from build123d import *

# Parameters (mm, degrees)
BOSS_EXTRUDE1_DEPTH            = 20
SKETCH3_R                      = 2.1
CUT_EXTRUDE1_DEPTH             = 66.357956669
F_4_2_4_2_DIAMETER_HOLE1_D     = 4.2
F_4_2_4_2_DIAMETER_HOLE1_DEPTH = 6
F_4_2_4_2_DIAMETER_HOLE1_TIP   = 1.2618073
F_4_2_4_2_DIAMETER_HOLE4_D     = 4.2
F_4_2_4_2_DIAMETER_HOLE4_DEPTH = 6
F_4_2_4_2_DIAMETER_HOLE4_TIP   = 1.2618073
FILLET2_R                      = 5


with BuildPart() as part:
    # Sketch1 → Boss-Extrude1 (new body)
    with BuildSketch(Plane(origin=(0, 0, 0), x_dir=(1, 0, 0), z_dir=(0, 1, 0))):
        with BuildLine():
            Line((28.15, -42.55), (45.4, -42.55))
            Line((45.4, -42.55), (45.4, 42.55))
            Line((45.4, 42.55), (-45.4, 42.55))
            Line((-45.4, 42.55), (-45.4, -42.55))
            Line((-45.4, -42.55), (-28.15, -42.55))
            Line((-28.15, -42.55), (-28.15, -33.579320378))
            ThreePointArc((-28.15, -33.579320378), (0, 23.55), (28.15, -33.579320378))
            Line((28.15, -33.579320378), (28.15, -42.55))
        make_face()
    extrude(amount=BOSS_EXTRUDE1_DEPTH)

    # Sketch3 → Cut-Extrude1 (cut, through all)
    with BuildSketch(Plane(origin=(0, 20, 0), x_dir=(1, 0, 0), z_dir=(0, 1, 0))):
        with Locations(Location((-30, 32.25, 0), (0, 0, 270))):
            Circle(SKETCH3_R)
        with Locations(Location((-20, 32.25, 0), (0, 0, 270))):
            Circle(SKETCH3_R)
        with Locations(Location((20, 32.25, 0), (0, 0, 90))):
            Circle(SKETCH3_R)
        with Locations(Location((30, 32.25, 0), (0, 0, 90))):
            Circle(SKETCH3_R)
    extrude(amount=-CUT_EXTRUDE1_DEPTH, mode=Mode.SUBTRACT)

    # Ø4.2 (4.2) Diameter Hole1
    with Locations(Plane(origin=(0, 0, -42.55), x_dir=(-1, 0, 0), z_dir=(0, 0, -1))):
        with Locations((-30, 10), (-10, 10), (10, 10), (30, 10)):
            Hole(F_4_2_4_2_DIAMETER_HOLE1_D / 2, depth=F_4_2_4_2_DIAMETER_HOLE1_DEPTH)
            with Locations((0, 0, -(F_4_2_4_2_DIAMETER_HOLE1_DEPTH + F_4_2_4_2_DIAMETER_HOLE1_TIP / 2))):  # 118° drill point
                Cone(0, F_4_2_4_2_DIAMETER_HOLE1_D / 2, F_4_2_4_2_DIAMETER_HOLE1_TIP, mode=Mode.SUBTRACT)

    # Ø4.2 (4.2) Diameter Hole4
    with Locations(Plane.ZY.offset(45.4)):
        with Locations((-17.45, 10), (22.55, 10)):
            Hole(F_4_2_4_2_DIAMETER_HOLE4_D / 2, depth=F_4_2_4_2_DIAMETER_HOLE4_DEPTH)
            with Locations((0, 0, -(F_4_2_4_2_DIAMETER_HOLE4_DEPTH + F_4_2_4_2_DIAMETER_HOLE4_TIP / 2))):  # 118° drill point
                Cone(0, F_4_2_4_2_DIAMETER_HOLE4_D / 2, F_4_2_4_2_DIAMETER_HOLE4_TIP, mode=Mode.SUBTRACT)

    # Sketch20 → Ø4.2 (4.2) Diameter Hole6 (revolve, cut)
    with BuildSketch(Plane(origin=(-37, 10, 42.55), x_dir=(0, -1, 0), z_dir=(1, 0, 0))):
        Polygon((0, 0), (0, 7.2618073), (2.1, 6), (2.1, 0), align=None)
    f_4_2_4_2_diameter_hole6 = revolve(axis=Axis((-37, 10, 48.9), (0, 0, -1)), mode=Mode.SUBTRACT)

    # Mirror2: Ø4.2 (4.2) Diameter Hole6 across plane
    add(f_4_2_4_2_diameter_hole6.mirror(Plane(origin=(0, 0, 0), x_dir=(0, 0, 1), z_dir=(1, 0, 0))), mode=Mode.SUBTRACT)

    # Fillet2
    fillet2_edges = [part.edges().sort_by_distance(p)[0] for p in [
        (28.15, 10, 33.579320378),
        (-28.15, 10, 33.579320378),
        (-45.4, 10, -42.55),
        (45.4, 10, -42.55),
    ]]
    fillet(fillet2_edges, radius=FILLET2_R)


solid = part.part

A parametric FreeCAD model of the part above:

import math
import FreeCAD as App
import Part
import Sketcher
Q = App.Units.Quantity


def edges_at(feature, points):
    """Names of the edges that pass closest to the given points."""
    edges = feature.Shape.Edges
    near = lambda p: min(range(len(edges)), key=lambda i: edges[i].distToShape(Part.Vertex(*p))[0])
    return sorted({f"Edge{near(p) + 1}" for p in points})

doc = App.newDocument("Part")
body = doc.addObject("PartDesign::Body", "Body")

# Sketch on XZ plane
sketch1 = body.newObject("Sketcher::SketchObject", "Sketch")
sketch1.AttachmentSupport = (doc.getObject("XZ_Plane"), [""])
sketch1.MapMode = "FlatFace"
sketch1.addGeometry(Part.LineSegment(App.Vector(28, 43, 0), App.Vector(45, 43, 0)), False)
sketch1.addGeometry(Part.LineSegment(App.Vector(45, 43, 0), App.Vector(45, -43, 0)), False)
sketch1.addGeometry(Part.LineSegment(App.Vector(45, -43, 0), App.Vector(-45, -43, 0)), False)
sketch1.addGeometry(Part.LineSegment(App.Vector(-45, -43, 0), App.Vector(-45, 43, 0)), False)
sketch1.addGeometry(Part.LineSegment(App.Vector(-45, 43, 0), App.Vector(-28, 43, 0)), False)
sketch1.addGeometry(Part.LineSegment(App.Vector(-28, 43, 0), App.Vector(-28, 34, 0)), False)
sketch1.addGeometry(Part.ArcOfCircle(Part.Circle(App.Vector(0, 12, 0), App.Vector(0, 0, 1), 36), math.radians(142), math.radians(398)), False)
sketch1.addGeometry(Part.LineSegment(App.Vector(28, 34, 0), App.Vector(28, 43, 0)), False)
sketch1.addConstraint(Sketcher.Constraint("Coincident", 0, 2, 1, 1))
sketch1.addConstraint(Sketcher.Constraint("Coincident", 1, 2, 2, 1))
sketch1.addConstraint(Sketcher.Constraint("Coincident", 2, 2, 3, 1))
sketch1.addConstraint(Sketcher.Constraint("Coincident", 3, 2, 4, 1))
sketch1.addConstraint(Sketcher.Constraint("Coincident", 4, 2, 5, 1))
sketch1.addConstraint(Sketcher.Constraint("Coincident", 5, 2, 6, 1))
sketch1.addConstraint(Sketcher.Constraint("Coincident", 6, 2, 7, 1))
sketch1.addConstraint(Sketcher.Constraint("Coincident", 7, 2, 0, 1))
sketch1.addConstraint(Sketcher.Constraint("Horizontal", 0))
sketch1.addConstraint(Sketcher.Constraint("Vertical", 1))
sketch1.addConstraint(Sketcher.Constraint("Horizontal", 2))
sketch1.addConstraint(Sketcher.Constraint("Vertical", 3))
sketch1.addConstraint(Sketcher.Constraint("Horizontal", 4))
sketch1.addConstraint(Sketcher.Constraint("Vertical", 5))
sketch1.addConstraint(Sketcher.Constraint("Vertical", 7))
sketch1.addConstraint(Sketcher.Constraint("Symmetric", 0, 2, 2, 2, -1, 1))
sketch1.addConstraint(Sketcher.Constraint("Symmetric", 5, 2, 6, 2, -2))
sketch1.addConstraint(Sketcher.Constraint("Horizontal", 0, 2, 3, 2))
sketch1.addConstraint(Sketcher.Constraint("Radius", 6, Q("35.5 mm")))
sketch1.addConstraint(Sketcher.Constraint("DistanceX", 2, 2, 2, 1, Q("90.8 mm")))
sketch1.addConstraint(Sketcher.Constraint("DistanceY", 1, 2, 1, 1, Q("85.1 mm")))
sketch1.addConstraint(Sketcher.Constraint("DistanceX", 0, 1, 0, 2, Q("17.25 mm")))
sketch1.addConstraint(Sketcher.Constraint("DistanceY", 6, 3, 0, 2, Q("30.6 mm")))
pad1 = body.newObject("PartDesign::Pad", "Pad")
pad1.Profile = sketch1
pad1.Length = 20
pad1.Reversed = True

# Sketch on XZ plane
sketch2 = body.newObject("Sketcher::SketchObject", "Sketch001")
sketch2.AttachmentSupport = (doc.getObject("XZ_Plane"), [""])
sketch2.MapMode = "FlatFace"
sketch2.AttachmentOffset = App.Placement(App.Vector(0, 0, -20), App.Rotation())
sketch2.addGeometry(Part.Circle(App.Vector(-30, -32.2, 0), App.Vector(0, 0, 1), 2.1), False)
sketch2.addGeometry(Part.Circle(App.Vector(-20, -32.2, 0), App.Vector(0, 0, 1), 2.1), False)
sketch2.addGeometry(Part.Circle(App.Vector(20, -32.2, 0), App.Vector(0, 0, 1), 2.1), False)
sketch2.addGeometry(Part.Circle(App.Vector(30, -32.2, 0), App.Vector(0, 0, 1), 2.1), False)
sketch2.addConstraint(Sketcher.Constraint("Equal", 0, 1))
sketch2.addConstraint(Sketcher.Constraint("Equal", 1, 2))
sketch2.addConstraint(Sketcher.Constraint("Equal", 2, 3))
sketch2.addConstraint(Sketcher.Constraint("Symmetric", 1, 3, 2, 3, -2))
sketch2.addConstraint(Sketcher.Constraint("Symmetric", 0, 3, 3, 3, -2))
sketch2.addConstraint(Sketcher.Constraint("Horizontal", 0, 3, 1, 3))
sketch2.addConstraint(Sketcher.Constraint("Diameter", 0, Q("4.2 mm")))
sketch2.addConstraint(Sketcher.Constraint("DistanceX", 0, 3, -1, 1, Q("30 mm")))
sketch2.addConstraint(Sketcher.Constraint("DistanceX", 1, 3, -1, 1, Q("20 mm")))
sketch2.addConstraint(Sketcher.Constraint("DistanceY", 0, 3, -1, 1, Q("32.25 mm")))
pocket1 = body.newObject("PartDesign::Pocket", "Pocket")
pocket1.Profile = sketch2
pocket1.Type = "ThroughAll"
pocket1.Reversed = True

# Sketch on XY plane
sketch3 = body.newObject("Sketcher::SketchObject", "Sketch002")
sketch3.AttachmentSupport = (doc.getObject("XY_Plane"), [""])
sketch3.MapMode = "FlatFace"
sketch3.AttachmentOffset = App.Placement(App.Vector(0, 0, -42.55), App.Rotation())
sketch3.addGeometry(Part.Circle(App.Vector(30, 10, 0), App.Vector(0, 0, 1), 2.1), False)
sketch3.addGeometry(Part.Circle(App.Vector(10, 10, 0), App.Vector(0, 0, 1), 2.1), False)
sketch3.addGeometry(Part.Circle(App.Vector(-10, 10, 0), App.Vector(0, 0, 1), 2.1), False)
sketch3.addGeometry(Part.Circle(App.Vector(-30, 10, 0), App.Vector(0, 0, 1), 2.1), False)
sketch3.addConstraint(Sketcher.Constraint("Equal", 0, 1))
sketch3.addConstraint(Sketcher.Constraint("Equal", 1, 2))
sketch3.addConstraint(Sketcher.Constraint("Equal", 2, 3))
sketch3.addConstraint(Sketcher.Constraint("Symmetric", 1, 3, 2, 3, -2))
sketch3.addConstraint(Sketcher.Constraint("Symmetric", 0, 3, 3, 3, -2))
sketch3.addConstraint(Sketcher.Constraint("Horizontal", 0, 3, 1, 3))
sketch3.addConstraint(Sketcher.Constraint("Diameter", 0, Q("4.2 mm")))
sketch3.addConstraint(Sketcher.Constraint("DistanceX", -1, 1, 0, 3, Q("30 mm")))
sketch3.addConstraint(Sketcher.Constraint("DistanceY", -1, 1, 0, 3, Q("10 mm")))
sketch3.addConstraint(Sketcher.Constraint("DistanceX", -1, 1, 1, 3, Q("10 mm")))
doc.recompute()
hole = body.newObject("PartDesign::Hole", "Hole")
hole.Profile = sketch3
hole.ThreadType = "None"
hole.Diameter = 4.2
hole.DepthType = "Dimension"
hole.Depth = 6
hole.DrillPoint = "Angled"
hole.DrillPointAngle = 118
hole.Reversed = True

# Sketch on YZ plane
sketch4 = body.newObject("Sketcher::SketchObject", "Sketch003")
sketch4.AttachmentSupport = (doc.getObject("YZ_Plane"), [""])
sketch4.MapMode = "FlatFace"
sketch4.AttachmentOffset = App.Placement(App.Vector(0, 0, -45.4), App.Rotation())
sketch4.addGeometry(Part.Circle(App.Vector(10, -17.4, 0), App.Vector(0, 0, 1), 2.1), False)
sketch4.addGeometry(Part.Circle(App.Vector(10, 22.6, 0), App.Vector(0, 0, 1), 2.1), False)
sketch4.addConstraint(Sketcher.Constraint("Equal", 0, 1))
sketch4.addConstraint(Sketcher.Constraint("Vertical", 0, 3, 1, 3))
sketch4.addConstraint(Sketcher.Constraint("Diameter", 0, Q("4.2 mm")))
sketch4.addConstraint(Sketcher.Constraint("DistanceX", -1, 1, 0, 3, Q("10 mm")))
sketch4.addConstraint(Sketcher.Constraint("DistanceY", 0, 3, 1, 3, Q("40 mm")))
sketch4.addConstraint(Sketcher.Constraint("DistanceY", 0, 3, -1, 1, Q("17.45 mm")))
doc.recompute()
hole2 = body.newObject("PartDesign::Hole", "Hole001")
hole2.Profile = sketch4
hole2.ThreadType = "None"
hole2.Diameter = 4.2
hole2.DepthType = "Dimension"
hole2.Depth = 6
hole2.DrillPoint = "Angled"
hole2.DrillPointAngle = 118
hole2.Reversed = True

# Sketch on YZ plane
sketch5 = body.newObject("Sketcher::SketchObject", "Sketch004")
sketch5.AttachmentSupport = (doc.getObject("YZ_Plane"), [""])
sketch5.MapMode = "FlatFace"
sketch5.AttachmentOffset = App.Placement(App.Vector(0, 0, -37), App.Rotation())
sketch5.addGeometry(Part.LineSegment(App.Vector(10, 35.3, 0), App.Vector(10, 42.5, 0)), False)
sketch5.addGeometry(Part.LineSegment(App.Vector(10, 42.5, 0), App.Vector(7.9, 42.5, 0)), False)
sketch5.addGeometry(Part.LineSegment(App.Vector(7.9, 42.5, 0), App.Vector(7.9, 36.5, 0)), False)
sketch5.addGeometry(Part.LineSegment(App.Vector(7.9, 36.5, 0), App.Vector(10, 35.3, 0)), False)
sketch5.addGeometry(Part.LineSegment(App.Vector(10, 42.5, 0), App.Vector(10, 35.3, 0)), True)  # axis
sketch5.addConstraint(Sketcher.Constraint("Coincident", 0, 2, 1, 1))
sketch5.addConstraint(Sketcher.Constraint("Coincident", 1, 2, 2, 1))
sketch5.addConstraint(Sketcher.Constraint("Coincident", 2, 2, 3, 1))
sketch5.addConstraint(Sketcher.Constraint("Coincident", 3, 2, 0, 1))
sketch5.addConstraint(Sketcher.Constraint("Vertical", 0))
sketch5.addConstraint(Sketcher.Constraint("Horizontal", 1))
sketch5.addConstraint(Sketcher.Constraint("Vertical", 2))
sketch5.addConstraint(Sketcher.Constraint("Vertical", 4))
sketch5.addConstraint(Sketcher.Constraint("Coincident", 4, 1, 0, 2))
sketch5.addConstraint(Sketcher.Constraint("Equal", 0, 4))
sketch5.addConstraint(Sketcher.Constraint("DistanceY", 2, 2, 2, 1, Q("6 mm")))
sketch5.addConstraint(Sketcher.Constraint("Angle", 3, Q("-31 deg")))
sketch5.addConstraint(Sketcher.Constraint("DistanceX", 1, 2, 1, 1, Q("2.1 mm")))
sketch5.addConstraint(Sketcher.Constraint("DistanceX", -1, 1, 0, 2, Q("10 mm")))
sketch5.addConstraint(Sketcher.Constraint("DistanceY", -1, 1, 0, 2, Q("42.55 mm")))
groove = body.newObject("PartDesign::Groove", "Groove")
groove.Profile = sketch5
groove.ReferenceAxis = (sketch5, ["Axis0"])
groove.Angle = 360
doc.recompute()

mirrored = body.newObject("PartDesign::Mirrored", "Mirrored")
mirrored.Originals = [groove]
mirrored.MirrorPlane = (doc.getObject("YZ_Plane"), [""])
body.Tip = mirrored
doc.recompute()

fillet = body.newObject("PartDesign::Fillet", "Fillet")
fillet.Base = (mirrored, edges_at(mirrored, [
    (28.15, 10, 33.579),
    (-28.15, 10, 33.579),
    (-45.4, 10, -42.55),
    (45.4, 10, -42.55),
]))
fillet.Radius = 5

doc.recompute()
